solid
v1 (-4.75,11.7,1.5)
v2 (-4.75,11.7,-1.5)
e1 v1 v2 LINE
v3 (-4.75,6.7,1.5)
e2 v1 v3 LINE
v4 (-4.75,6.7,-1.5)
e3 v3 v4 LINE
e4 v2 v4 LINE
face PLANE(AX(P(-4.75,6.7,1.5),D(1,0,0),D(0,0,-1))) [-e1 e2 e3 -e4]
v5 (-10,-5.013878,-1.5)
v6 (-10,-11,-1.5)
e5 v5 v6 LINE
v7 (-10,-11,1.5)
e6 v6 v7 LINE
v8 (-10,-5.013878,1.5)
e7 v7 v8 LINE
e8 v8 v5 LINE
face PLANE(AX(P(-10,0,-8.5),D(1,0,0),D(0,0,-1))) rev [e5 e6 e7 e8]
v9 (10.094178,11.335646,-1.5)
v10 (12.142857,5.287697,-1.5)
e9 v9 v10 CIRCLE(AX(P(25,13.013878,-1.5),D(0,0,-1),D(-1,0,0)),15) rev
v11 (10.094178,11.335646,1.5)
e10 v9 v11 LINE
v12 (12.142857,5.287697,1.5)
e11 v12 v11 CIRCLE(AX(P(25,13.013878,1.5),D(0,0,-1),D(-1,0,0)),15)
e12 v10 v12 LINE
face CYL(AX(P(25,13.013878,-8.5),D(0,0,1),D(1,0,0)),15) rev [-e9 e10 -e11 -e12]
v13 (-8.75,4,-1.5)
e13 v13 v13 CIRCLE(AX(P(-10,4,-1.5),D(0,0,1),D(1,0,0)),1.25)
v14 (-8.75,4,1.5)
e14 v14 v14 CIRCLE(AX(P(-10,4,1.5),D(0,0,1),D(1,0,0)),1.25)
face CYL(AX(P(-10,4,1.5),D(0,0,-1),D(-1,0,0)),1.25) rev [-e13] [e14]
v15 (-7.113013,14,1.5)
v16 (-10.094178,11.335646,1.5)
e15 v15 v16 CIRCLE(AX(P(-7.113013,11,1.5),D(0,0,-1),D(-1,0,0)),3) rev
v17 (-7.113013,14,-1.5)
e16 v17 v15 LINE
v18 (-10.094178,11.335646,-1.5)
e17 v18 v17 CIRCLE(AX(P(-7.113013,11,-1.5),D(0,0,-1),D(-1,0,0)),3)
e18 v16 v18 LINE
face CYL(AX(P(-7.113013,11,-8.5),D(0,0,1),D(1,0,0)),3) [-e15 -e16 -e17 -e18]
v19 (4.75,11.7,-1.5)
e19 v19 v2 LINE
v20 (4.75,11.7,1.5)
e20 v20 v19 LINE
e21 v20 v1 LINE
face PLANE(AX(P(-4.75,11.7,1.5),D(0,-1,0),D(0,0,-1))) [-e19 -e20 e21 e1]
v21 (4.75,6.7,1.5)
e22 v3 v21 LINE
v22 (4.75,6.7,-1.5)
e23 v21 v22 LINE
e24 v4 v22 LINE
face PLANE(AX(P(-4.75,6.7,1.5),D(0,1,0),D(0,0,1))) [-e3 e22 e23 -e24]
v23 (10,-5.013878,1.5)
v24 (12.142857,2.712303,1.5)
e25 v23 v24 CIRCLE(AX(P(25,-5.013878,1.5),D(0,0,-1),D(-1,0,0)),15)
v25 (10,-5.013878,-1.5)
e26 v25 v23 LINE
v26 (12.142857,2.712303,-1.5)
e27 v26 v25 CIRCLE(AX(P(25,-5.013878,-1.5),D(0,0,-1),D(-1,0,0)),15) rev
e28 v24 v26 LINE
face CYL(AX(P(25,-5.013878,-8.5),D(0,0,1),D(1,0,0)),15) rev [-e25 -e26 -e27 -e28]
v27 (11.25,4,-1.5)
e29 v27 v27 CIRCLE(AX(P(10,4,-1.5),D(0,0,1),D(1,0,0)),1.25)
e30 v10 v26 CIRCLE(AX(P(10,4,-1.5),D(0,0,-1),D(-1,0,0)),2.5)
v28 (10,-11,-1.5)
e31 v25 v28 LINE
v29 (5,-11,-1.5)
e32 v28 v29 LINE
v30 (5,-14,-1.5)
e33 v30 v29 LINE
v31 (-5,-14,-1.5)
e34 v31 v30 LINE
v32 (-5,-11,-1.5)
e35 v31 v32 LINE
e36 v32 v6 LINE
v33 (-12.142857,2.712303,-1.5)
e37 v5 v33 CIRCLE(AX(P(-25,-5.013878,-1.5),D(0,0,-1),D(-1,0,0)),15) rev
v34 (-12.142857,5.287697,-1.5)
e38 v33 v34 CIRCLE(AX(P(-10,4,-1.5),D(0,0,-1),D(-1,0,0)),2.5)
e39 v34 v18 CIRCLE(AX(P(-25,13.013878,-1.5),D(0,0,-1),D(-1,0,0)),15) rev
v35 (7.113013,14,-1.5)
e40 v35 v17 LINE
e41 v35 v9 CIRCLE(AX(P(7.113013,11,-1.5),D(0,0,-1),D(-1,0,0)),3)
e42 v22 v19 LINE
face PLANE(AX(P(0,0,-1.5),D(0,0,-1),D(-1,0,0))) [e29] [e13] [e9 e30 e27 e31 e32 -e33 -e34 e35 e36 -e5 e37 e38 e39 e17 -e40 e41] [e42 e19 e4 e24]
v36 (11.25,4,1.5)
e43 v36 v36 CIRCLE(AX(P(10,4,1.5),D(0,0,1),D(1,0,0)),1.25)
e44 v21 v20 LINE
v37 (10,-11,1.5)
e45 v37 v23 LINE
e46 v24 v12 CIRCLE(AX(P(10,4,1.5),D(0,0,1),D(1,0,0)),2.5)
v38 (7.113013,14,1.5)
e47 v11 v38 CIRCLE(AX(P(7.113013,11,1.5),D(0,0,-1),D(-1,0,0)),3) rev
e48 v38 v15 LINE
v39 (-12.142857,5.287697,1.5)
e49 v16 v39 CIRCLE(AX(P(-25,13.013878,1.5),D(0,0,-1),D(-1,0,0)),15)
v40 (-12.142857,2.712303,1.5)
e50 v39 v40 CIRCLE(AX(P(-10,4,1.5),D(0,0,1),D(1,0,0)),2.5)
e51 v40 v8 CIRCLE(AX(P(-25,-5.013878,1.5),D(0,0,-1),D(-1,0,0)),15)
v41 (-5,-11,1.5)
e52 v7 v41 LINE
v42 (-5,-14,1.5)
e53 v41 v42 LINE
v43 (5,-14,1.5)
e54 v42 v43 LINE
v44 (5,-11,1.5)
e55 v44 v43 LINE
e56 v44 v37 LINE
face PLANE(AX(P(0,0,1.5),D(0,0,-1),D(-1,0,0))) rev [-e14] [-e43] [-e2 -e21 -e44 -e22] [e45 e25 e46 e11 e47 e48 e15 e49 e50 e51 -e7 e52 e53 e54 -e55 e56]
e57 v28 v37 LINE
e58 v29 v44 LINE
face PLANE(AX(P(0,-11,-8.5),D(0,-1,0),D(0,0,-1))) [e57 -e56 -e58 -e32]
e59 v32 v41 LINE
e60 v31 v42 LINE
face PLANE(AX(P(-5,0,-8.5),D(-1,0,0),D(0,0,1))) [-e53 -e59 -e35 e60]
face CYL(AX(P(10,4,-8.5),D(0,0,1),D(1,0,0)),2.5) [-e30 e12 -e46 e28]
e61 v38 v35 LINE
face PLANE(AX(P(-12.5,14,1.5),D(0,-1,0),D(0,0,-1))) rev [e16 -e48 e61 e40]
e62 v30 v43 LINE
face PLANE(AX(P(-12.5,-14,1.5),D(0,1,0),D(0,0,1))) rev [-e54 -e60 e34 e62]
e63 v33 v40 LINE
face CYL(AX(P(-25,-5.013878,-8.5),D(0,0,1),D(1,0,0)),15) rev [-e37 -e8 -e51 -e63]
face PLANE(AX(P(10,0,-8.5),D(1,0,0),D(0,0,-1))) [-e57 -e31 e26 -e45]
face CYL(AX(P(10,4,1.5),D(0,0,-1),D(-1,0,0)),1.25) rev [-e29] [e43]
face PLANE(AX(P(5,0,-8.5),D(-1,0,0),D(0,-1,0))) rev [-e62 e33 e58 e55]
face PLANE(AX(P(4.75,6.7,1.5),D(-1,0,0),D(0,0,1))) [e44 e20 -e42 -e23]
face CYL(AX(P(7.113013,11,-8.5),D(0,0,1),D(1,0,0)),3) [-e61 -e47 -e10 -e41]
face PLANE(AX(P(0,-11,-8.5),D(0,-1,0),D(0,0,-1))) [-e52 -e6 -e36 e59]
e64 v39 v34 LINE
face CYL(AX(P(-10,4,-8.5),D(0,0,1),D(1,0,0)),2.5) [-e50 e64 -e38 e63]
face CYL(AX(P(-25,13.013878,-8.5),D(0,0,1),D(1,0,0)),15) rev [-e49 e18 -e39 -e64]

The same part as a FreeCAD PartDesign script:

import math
import FreeCAD as App
import Part
import Sketcher
from FreeCAD import Vector
Q = App.Units.Quantity


def edges_at(feature, points):
    """Names of the edges that pass closest to the given points."""
    edges = feature.Shape.Edges
    near = lambda p: min(range(len(edges)), key=lambda i: edges[i].distToShape(Part.Vertex(*p))[0])
    return sorted({f"Edge{near(p) + 1}" for p in points})

doc = App.newDocument("Part")
body = doc.addObject("PartDesign::Body", "Body")

sketch1 = doc.addObject("Sketcher::SketchObject", "Sketch")
body.addObject(sketch1)
sketch1.AttachmentSupport = (doc.XY_Plane, [""])
sketch1.MapMode = "FlatFace"
sketch1.addGeometry([
    Part.LineSegment(Vector(-12.5, 14, 0), Vector(-12.5, -14, 0)),
    Part.LineSegment(Vector(-12.5, -14, 0), Vector(12.5, -14, 0)),
    Part.LineSegment(Vector(12.5, -14, 0), Vector(12.5, 14, 0)),
    Part.LineSegment(Vector(12.5, 14, 0), Vector(-12.5, 14, 0)),
    Part.Circle(Vector(-10, 4, 0), Vector(0, 0, 1), 1.25),
    Part.Circle(Vector(10, 4, 0), Vector(0, 0, 1), 1.25),
    Part.LineSegment(Vector(4.75, 6.7, 0), Vector(-4.75, 6.7, 0)),
    Part.LineSegment(Vector(-4.75, 6.7, 0), Vector(-4.75, 11.7, 0)),
    Part.LineSegment(Vector(-4.75, 11.7, 0), Vector(4.75, 11.7, 0)),
    Part.LineSegment(Vector(4.75, 11.7, 0), Vector(4.75, 6.7, 0)),
], False)
sketch1.addConstraint([
    Sketcher.Constraint("Coincident", 0, 2, 1, 1),
    Sketcher.Constraint("Coincident", 1, 2, 2, 1),
    Sketcher.Constraint("Coincident", 2, 2, 3, 1),
    Sketcher.Constraint("Coincident", 3, 2, 0, 1),
    Sketcher.Constraint("Coincident", 6, 2, 7, 1),
    Sketcher.Constraint("Coincident", 7, 2, 8, 1),
    Sketcher.Constraint("Coincident", 8, 2, 9, 1),
    Sketcher.Constraint("Coincident", 9, 2, 6, 1),
    Sketcher.Constraint("Vertical", 0),
    Sketcher.Constraint("Horizontal", 1),
    Sketcher.Constraint("Vertical", 2),
    Sketcher.Constraint("Horizontal", 3),
    Sketcher.Constraint("Horizontal", 6),
    Sketcher.Constraint("Vertical", 7),
    Sketcher.Constraint("Horizontal", 8),
    Sketcher.Constraint("Vertical", 9),
    Sketcher.Constraint("Equal", 4, 5),
    Sketcher.Constraint("Symmetric", 0, 2, 2, 2, -1, 1),
    Sketcher.Constraint("Symmetric", 4, 3, 5, 3, -2),
    Sketcher.Constraint("Diameter", 4, Q("2.5 mm")),
    Sketcher.Constraint("DistanceX", 1, 1, 1, 2, Q("25 mm")),
    Sketcher.Constraint("DistanceY", 0, 2, 0, 1, Q("28 mm")),
    Sketcher.Constraint("DistanceY", 7, 1, 7, 2, Q("5 mm")),
    Sketcher.Constraint("DistanceX", 6, 2, 6, 1, Q("9.5 mm")),
    Sketcher.Constraint("DistanceX", 4, 3, -1, 1, Q("10 mm")),
    Sketcher.Constraint("DistanceY", -1, 1, 4, 3, Q("4 mm")),
    Sketcher.Constraint("DistanceY", -1, 1, 6, 2, Q("6.7 mm")),
    Sketcher.Constraint("DistanceX", 6, 2, -1, 1, Q("4.75 mm")),
])
pad1 = doc.addObject("PartDesign::Pad", "Pad")
body.addObject(pad1)
pad1.Profile = sketch1
pad1.Length = 3
pad1.Midplane = True

sketch2 = doc.addObject("Sketcher::SketchObject", "Sketch001")
body.addObject(sketch2)
sketch2.AttachmentSupport = (doc.XY_Plane, [""])
sketch2.MapMode = "FlatFace"
sketch2.AttachmentOffset = App.Placement(Vector(0, 0, 1.5), App.Rotation())
sketch2.addGeometry([
    Part.LineSegment(Vector(-12.5, -14, 0), Vector(-5, -14, 0)),
    Part.LineSegment(Vector(-5, -14, 0), Vector(-5, -11, 0)),
    Part.LineSegment(Vector(-5, -11, 0), Vector(-10, -11, 0)),
    Part.LineSegment(Vector(-10, -11, 0), Vector(-10, 1.5, 0)),
    Part.ArcOfCircle(Part.Circle(Vector(-10, 4, 0), Vector(0, 0, 1), 2.5), math.radians(180), math.radians(270)),
    Part.LineSegment(Vector(-12.5, 4, 0), Vector(-12.5, -14, 0)),
    Part.LineSegment(Vector(5, -11, 0), Vector(5, -14, 0)),
    Part.LineSegment(Vector(5, -14, 0), Vector(12.5, -14, 0)),
    Part.LineSegment(Vector(12.5, -14, 0), Vector(12.5, 4, 0)),
    Part.ArcOfCircle(Part.Circle(Vector(10, 4, 0), Vector(0, 0, 1), 2.5), math.radians(-90), math.radians(0)),
    Part.LineSegment(Vector(10, 1.5, 0), Vector(10, -11, 0)),
    Part.LineSegment(Vector(10, -11, 0), Vector(5, -11, 0)),
    Part.LineSegment(Vector(12.5, 14, 0), Vector(10, 14, 0)),
    Part.LineSegment(Vector(10, 14, 0), Vector(10, 6.5, 0)),
    Part.ArcOfCircle(Part.Circle(Vector(10, 4, 0), Vector(0, 0, 1), 2.5), math.radians(0), math.radians(90)),
    Part.LineSegment(Vector(12.5, 4, 0), Vector(12.5, 14, 0)),
    Part.ArcOfCircle(Part.Circle(Vector(-10, 4, 0), Vector(0, 0, 1), 2.5), math.radians(90), math.radians(180)),
    Part.LineSegment(Vector(-10, 6.5, 0), Vector(-10, 14, 0)),
    Part.LineSegment(Vector(-10, 14, 0), Vector(-12.5, 14, 0)),
    Part.LineSegment(Vector(-12.5, 14, 0), Vector(-12.5, 4, 0)),
], False)
sketch2.addConstraint([
    Sketcher.Constraint("Coincident", 0, 2, 1, 1),
    Sketcher.Constraint("Coincident", 1, 2, 2, 1),
    Sketcher.Constraint("Coincident", 2, 2, 3, 1),
    Sketcher.Constraint("Coincident", 3, 2, 4, 2),
    Sketcher.Constraint("Tangent", 4, 1, 5, 1),
    Sketcher.Constraint("Coincident", 5, 2, 0, 1),
    Sketcher.Constraint("Coincident", 6, 2, 7, 1),
    Sketcher.Constraint("Coincident", 7, 2, 8, 1),
    Sketcher.Constraint("Tangent", 8, 2, 9, 2),
    Sketcher.Constraint("Coincident", 9, 1, 10, 1),
    Sketcher.Constraint("Coincident", 10, 2, 11, 1),
    Sketcher.Constraint("Coincident", 11, 2, 6, 1),
    Sketcher.Constraint("Coincident", 12, 2, 13, 1),
    Sketcher.Constraint("Coincident", 13, 2, 14, 2),
    Sketcher.Constraint("Tangent", 14, 1, 15, 1),
    Sketcher.Constraint("Coincident", 15, 2, 12, 1),
    Sketcher.Constraint("Coincident", 16, 1, 17, 1),
    Sketcher.Constraint("Coincident", 17, 2, 18, 1),
    Sketcher.Constraint("Coincident", 18, 2, 19, 1),
    Sketcher.Constraint("Tangent", 19, 2, 16, 2),
    Sketcher.Constraint("Horizontal", 0),
    Sketcher.Constraint("Vertical", 1),
    Sketcher.Constraint("Horizontal", 2),
    Sketcher.Constraint("Vertical", 3),
    Sketcher.Constraint("Vertical", 5),
    Sketcher.Constraint("Vertical", 6),
    Sketcher.Constraint("Horizontal", 7),
    Sketcher.Constraint("Vertical", 8),
    Sketcher.Constraint("Vertical", 10),
    Sketcher.Constraint("Horizontal", 11),
    Sketcher.Constraint("Horizontal", 12),
    Sketcher.Constraint("Vertical", 13),
    Sketcher.Constraint("Vertical", 15),
    Sketcher.Constraint("Vertical", 17),
    Sketcher.Constraint("Horizontal", 18),
    Sketcher.Constraint("Vertical", 19),
    Sketcher.Constraint("Coincident", 14, 3, 9, 3),
    Sketcher.Constraint("Coincident", 16, 3, 4, 3),
    Sketcher.Constraint("Equal", 4, 9),
    Sketcher.Constraint("Equal", 9, 14),
    Sketcher.Constraint("Equal", 14, 16),
    Sketcher.Constraint("Symmetric", 5, 2, 15, 2, -1, 1),
    Sketcher.Constraint("Symmetric", 0, 2, 6, 2, -2),
    Sketcher.Constraint("Symmetric", 3, 2, 9, 1, -2),
    Sketcher.Constraint("Symmetric", 12, 2, 17, 2, -2),
    Sketcher.Constraint("Horizontal", 2, 2, 10, 2),
    Sketcher.Constraint("Vertical", 16, 3, 2, 2),
    Sketcher.Constraint("Vertical", 10, 2, 12, 2),
    Sketcher.Constraint("Equal", 7, 13),
    Sketcher.Constraint("Radius", 4, Q("2.5 mm")),
    Sketcher.Constraint("DistanceX", 2, 2, 2, 1, Q("5 mm")),
    Sketcher.Constraint("DistanceY", 1, 1, 1, 2, Q("3 mm")),
    Sketcher.Constraint("DistanceY", 5, 2, 5, 1, Q("18 mm")),
    Sketcher.Constraint("DistanceX", 4, 3, -1, 1, Q("10 mm")),
])
pocket1 = doc.addObject("PartDesign::Pocket", "Pocket")
body.addObject(pocket1)
pocket1.Profile = sketch2
pocket1.Length = 10
doc.recompute()

fillet = doc.addObject("PartDesign::Fillet", "Fillet")
body.addObject(fillet)
fillet.Base = (pocket1, edges_at(pocket1, [
    (-10, 6.5, 0),
    (-10, 1.5, 0),
    (10, 1.5, 0),
    (10, 6.5, 0),
]))
fillet.Radius = 15
doc.recompute()

fillet2 = doc.addObject("PartDesign::Fillet", "Fillet001")
body.addObject(fillet2)
fillet2.Base = (fillet, edges_at(fillet, [(10, 14, 0), (-10, 14, 0)]))
fillet2.Radius = 3

doc.recompute()
